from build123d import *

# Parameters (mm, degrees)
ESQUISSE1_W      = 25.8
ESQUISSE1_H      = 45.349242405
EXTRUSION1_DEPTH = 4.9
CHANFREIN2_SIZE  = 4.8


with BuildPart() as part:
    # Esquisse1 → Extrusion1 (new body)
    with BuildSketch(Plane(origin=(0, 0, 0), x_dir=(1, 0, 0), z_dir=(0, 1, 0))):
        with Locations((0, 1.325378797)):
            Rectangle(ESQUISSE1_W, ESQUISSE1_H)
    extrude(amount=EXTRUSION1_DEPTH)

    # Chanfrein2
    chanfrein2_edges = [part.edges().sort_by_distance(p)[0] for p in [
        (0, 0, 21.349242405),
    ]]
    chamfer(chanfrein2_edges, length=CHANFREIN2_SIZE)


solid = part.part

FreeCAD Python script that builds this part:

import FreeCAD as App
import Part
import Sketcher
Q = App.Units.Quantity


def edges_at(feature, points):
    """Names of the edges that pass closest to the given points."""
    edges = feature.Shape.Edges
    near = lambda p: min(range(len(edges)), key=lambda i: edges[i].distToShape(Part.Vertex(*p))[0])
    return sorted({f"Edge{near(p) + 1}" for p in points})

doc = App.newDocument("Part")
body = doc.addObject("PartDesign::Body", "Body")

# Sketch on XZ plane
sketch1 = body.newObject("Sketcher::SketchObject", "Sketch")
sketch1.AttachmentSupport = (doc.getObject("XZ_Plane"), [""])
sketch1.MapMode = "FlatFace"
sketch1.addGeometry(Part.LineSegment(App.Vector(-12.9, -24, 0), App.Vector(-12.9, 21.349242, 0)), False)
sketch1.addGeometry(Part.LineSegment(App.Vector(-12.9, 21.349242, 0), App.Vector(12.9, 21.349242, 0)), False)
sketch1.addGeometry(Part.LineSegment(App.Vector(12.9, 21.349242, 0), App.Vector(12.9, -24, 0)), False)
sketch1.addGeometry(Part.LineSegment(App.Vector(12.9, -24, 0), App.Vector(-12.9, -24, 0)), False)
sketch1.addConstraint(Sketcher.Constraint("Coincident", 0, 2, 1, 1))
sketch1.addConstraint(Sketcher.Constraint("Coincident", 1, 2, 2, 1))
sketch1.addConstraint(Sketcher.Constraint("Coincident", 2, 2, 3, 1))
sketch1.addConstraint(Sketcher.Constraint("Coincident", 3, 2, 0, 1))
sketch1.addConstraint(Sketcher.Constraint("Vertical", 0))
sketch1.addConstraint(Sketcher.Constraint("Horizontal", 1))
sketch1.addConstraint(Sketcher.Constraint("Vertical", 2))
sketch1.addConstraint(Sketcher.Constraint("Horizontal", 3))
sketch1.addConstraint(Sketcher.Constraint("DistanceX", 1, 1, 1, 2, Q("25.8 mm")))
sketch1.addConstraint(Sketcher.Constraint("DistanceY", 2, 2, -1, 1, Q("24 mm")))
sketch1.addConstraint(Sketcher.Constraint("DistanceX", 0, 2, -1, 1, Q("12.9 mm")))
sketch1.addConstraint(Sketcher.Constraint("DistanceY", 0, 1, 0, 2, Q("45.349242 mm")))
pad1 = body.newObject("PartDesign::Pad", "Pad")
pad1.Profile = sketch1
pad1.Length = 4.9
pad1.Reversed = True
doc.recompute()

chamfer = body.newObject("PartDesign::Chamfer", "Chamfer")
chamfer.Base = (pad1, edges_at(pad1, [(0, 0, 21.349)]))
chamfer.Size = 4.8

doc.recompute()
